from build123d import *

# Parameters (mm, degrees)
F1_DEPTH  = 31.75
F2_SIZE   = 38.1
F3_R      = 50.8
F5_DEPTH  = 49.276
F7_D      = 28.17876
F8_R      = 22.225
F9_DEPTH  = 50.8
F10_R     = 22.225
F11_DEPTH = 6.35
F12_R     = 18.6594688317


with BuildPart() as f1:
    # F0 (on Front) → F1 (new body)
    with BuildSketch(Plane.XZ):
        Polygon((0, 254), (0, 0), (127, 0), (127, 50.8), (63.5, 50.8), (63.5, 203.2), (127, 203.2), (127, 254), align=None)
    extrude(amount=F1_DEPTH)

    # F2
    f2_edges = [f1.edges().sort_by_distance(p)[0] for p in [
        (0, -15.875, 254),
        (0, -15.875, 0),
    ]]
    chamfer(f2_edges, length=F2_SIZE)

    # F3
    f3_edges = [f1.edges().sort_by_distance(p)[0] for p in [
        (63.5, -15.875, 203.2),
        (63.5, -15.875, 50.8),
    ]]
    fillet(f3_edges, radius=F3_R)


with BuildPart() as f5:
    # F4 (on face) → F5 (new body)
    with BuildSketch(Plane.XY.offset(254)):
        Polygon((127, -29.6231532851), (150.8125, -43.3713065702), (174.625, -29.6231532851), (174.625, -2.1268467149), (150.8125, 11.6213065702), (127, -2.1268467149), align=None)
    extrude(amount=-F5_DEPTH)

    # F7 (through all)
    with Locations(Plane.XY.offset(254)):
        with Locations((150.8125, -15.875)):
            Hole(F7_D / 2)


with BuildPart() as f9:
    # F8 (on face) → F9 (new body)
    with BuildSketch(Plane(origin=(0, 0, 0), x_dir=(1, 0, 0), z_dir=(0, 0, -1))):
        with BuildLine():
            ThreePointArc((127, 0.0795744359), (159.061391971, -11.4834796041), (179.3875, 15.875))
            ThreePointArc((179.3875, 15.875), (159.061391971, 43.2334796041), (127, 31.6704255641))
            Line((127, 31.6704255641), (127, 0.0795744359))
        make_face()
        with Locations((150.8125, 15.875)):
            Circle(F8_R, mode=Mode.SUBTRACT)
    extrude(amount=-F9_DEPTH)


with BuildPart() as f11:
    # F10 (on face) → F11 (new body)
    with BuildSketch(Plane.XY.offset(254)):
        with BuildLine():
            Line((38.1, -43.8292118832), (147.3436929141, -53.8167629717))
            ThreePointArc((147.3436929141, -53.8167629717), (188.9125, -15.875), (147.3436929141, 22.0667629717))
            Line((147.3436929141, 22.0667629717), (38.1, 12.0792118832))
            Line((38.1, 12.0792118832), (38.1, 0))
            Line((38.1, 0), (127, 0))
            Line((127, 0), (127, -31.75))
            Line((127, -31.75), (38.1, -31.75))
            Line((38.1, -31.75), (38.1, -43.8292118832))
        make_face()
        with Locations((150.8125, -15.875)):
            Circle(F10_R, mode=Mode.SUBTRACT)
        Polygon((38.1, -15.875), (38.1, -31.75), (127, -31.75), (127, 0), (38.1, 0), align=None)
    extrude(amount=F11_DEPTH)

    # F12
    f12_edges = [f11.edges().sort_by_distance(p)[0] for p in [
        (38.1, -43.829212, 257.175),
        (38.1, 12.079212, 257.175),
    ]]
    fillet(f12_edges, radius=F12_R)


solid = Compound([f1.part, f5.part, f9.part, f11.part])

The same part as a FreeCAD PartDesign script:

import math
import FreeCAD as App
import Part
import Sketcher
Q = App.Units.Quantity


def edges_at(feature, points):
    """Names of the edges that pass closest to the given points."""
    edges = feature.Shape.Edges
    near = lambda p: min(range(len(edges)), key=lambda i: edges[i].distToShape(Part.Vertex(*p))[0])
    return sorted({f"Edge{near(p) + 1}" for p in points})


def add_polygon(sketch, points):
    """Adds a closed chain of lines whose ends are joined by coincident constraints."""
    first, n = sketch.GeometryCount, len(points)
    for a, b in zip(points, points[1:] + points[:1]):
        sketch.addGeometry(Part.LineSegment(App.Vector(*a, 0), App.Vector(*b, 0)), False)
    for i in range(n):
        sketch.addConstraint(Sketcher.Constraint("Coincident", first + i, 2, first + (i + 1) % n, 1))

doc = App.newDocument("Part")
body = doc.addObject("PartDesign::Body", "Body")

sketch1 = body.newObject("Sketcher::SketchObject", "Sketch")
sketch1.AttachmentSupport = (doc.getObject("XZ_Plane"), [""])
sketch1.MapMode = "FlatFace"
add_polygon(sketch1, [(0, 254), (0, 0), (127, 0), (127, 51), (64, 51), (64, 203), (127, 203), (127, 254)])
sketch1.addConstraint([
    Sketcher.Constraint("Vertical", 0),
    Sketcher.Constraint("Horizontal", 1),
    Sketcher.Constraint("Vertical", 2),
    Sketcher.Constraint("Horizontal", 3),
    Sketcher.Constraint("Vertical", 4),
    Sketcher.Constraint("Horizontal", 5),
    Sketcher.Constraint("Vertical", 6),
    Sketcher.Constraint("Horizontal", 7),
    Sketcher.Constraint("Coincident", 0, 2, -1, 1),
    Sketcher.Constraint("Vertical", 2, 2, 5, 2),
    Sketcher.Constraint("Equal", 2, 6),
    Sketcher.Constraint("DistanceX", 1, 1, 1, 2, Q("5 in")),
    Sketcher.Constraint("DistanceY", 0, 2, 0, 1, Q("10 in")),
    Sketcher.Constraint("DistanceY", 2, 1, 2, 2, Q("2 in")),
    Sketcher.Constraint("DistanceX", 3, 2, 3, 1, Q("2.5 in")),
])
pad1 = body.newObject("PartDesign::Pad", "Pad")
pad1.Profile = sketch1
pad1.Length = Q("1.25 in")
doc.recompute()

chamfer = body.newObject("PartDesign::Chamfer", "Chamfer")
chamfer.Base = (pad1, edges_at(pad1, [(0, -15.875, 254), (0, -15.875, 0)]))
chamfer.Size = Q("1.5 in")
doc.recompute()

fillet = body.newObject("PartDesign::Fillet", "Fillet")
fillet.Base = (chamfer, edges_at(chamfer, [(63.5, -15.875, 203.2), (63.5, -15.875, 50.8)]))
fillet.Radius = Q("2 in")
body2 = doc.addObject("PartDesign::Body", "Body001")

sketch2 = body2.newObject("Sketcher::SketchObject", "Sketch001")
sketch2.AttachmentSupport = (doc.getObject("XY_Plane001"), [""])
sketch2.MapMode = "FlatFace"
sketch2.AttachmentOffset = App.Placement(App.Vector(0, 0, 10 * 25.4), App.Rotation())
add_polygon(sketch2, [(127, -30), (151, -43), (175, -30), (175, -2), (151, 12), (127, -2)])
sketch2.addConstraint([
    Sketcher.Constraint("Vertical", 2),
    Sketcher.Constraint("Vertical", 5),
    Sketcher.Constraint("Parallel", 0, 3),
    Sketcher.Constraint("Parallel", 1, 4),
    Sketcher.Constraint("Horizontal", 2, 2, 4, 2),
    Sketcher.Constraint("Horizontal", 1, 2, 5, 2),
    Sketcher.Constraint("Vertical", 0, 2, 3, 2),
    Sketcher.Constraint("DistanceX", -1, 1, 4, 2, Q("5 in")),
    Sketcher.Constraint("Angle", 0, Q("-30 deg")),
    Sketcher.Constraint("DistanceX", -1, 1, 0, 2, Q("5.9375 in")),
    Sketcher.Constraint("DistanceY", 2, 1, 2, 2, 27.496307),
    Sketcher.Constraint("DistanceY", 0, 2, -1, 1, 43.371307),
])
pad2 = body2.newObject("PartDesign::Pad", "Pad001")
pad2.Profile = sketch2
pad2.Length = Q("1.94 in")
pad2.Reversed = True

sketch3 = body2.newObject("Sketcher::SketchObject", "Sketch002")
sketch3.AttachmentSupport = (doc.getObject("XY_Plane001"), [""])
sketch3.MapMode = "FlatFace"
sketch3.AttachmentOffset = App.Placement(App.Vector(0, 0, 10 * 25.4), App.Rotation())
sketch3.addGeometry(Part.Circle(App.Vector(151, -16, 0), App.Vector(0, 0, 1), 14), False)
sketch3.addConstraint([
    Sketcher.Constraint("Diameter", 0, Q("1.1094 in")),
    Sketcher.Constraint("DistanceX", -1, 1, 0, 3, Q("5.9375 in")),
    Sketcher.Constraint("DistanceY", 0, 3, -1, 1, Q("0.625 in")),
])
doc.recompute()
hole = body2.newObject("PartDesign::Hole", "Hole")
hole.Profile = sketch3
hole.ThreadType = "None"
hole.Diameter = Q("1.1094 in")
hole.DepthType = "ThroughAll"
body3 = doc.addObject("PartDesign::Body", "Body002")

sketch4 = body3.newObject("Sketcher::SketchObject", "Sketch003")
sketch4.AttachmentSupport = (doc.getObject("XY_Plane002"), [""])
sketch4.MapMode = "FlatFace"
sketch4.addGeometry([
    Part.ArcOfCircle(Part.Circle(App.Vector(151, -16, 0), App.Vector(0, 0, 1), 29), math.radians(0), math.radians(146)),
    Part.ArcOfCircle(Part.Circle(App.Vector(151, -16, 0), App.Vector(0, 0, 1), 29), math.radians(-146), math.radians(0)),
    Part.LineSegment(App.Vector(127, -32, 0), App.Vector(127, 0, 0)),
    Part.Circle(App.Vector(151, -16, 0), App.Vector(0, 0, 1), 22),
], False)
sketch4.addConstraint([
    Sketcher.Constraint("Tangent", 0, 1, 1, 2),
    Sketcher.Constraint("Coincident", 1, 1, 2, 1),
    Sketcher.Constraint("Coincident", 2, 2, 0, 2),
    Sketcher.Constraint("Vertical", 2),
    Sketcher.Constraint("Coincident", 3, 3, 0, 3),
    Sketcher.Constraint("Equal", 0, 1),
    Sketcher.Constraint("Horizontal", 3, 3, 0, 1),
    Sketcher.Constraint("Diameter", 3, Q("1.75 in")),
    Sketcher.Constraint("DistanceX", -1, 1, 1, 1, Q("5 in")),
    Sketcher.Constraint("Radius", 0, Q("1.125 in")),
    Sketcher.Constraint("DistanceX", -1, 1, 0, 3, Q("5.9375 in")),
    Sketcher.Constraint("DistanceY", 0, 3, -1, 1, Q("0.625 in")),
])
pad3 = body3.newObject("PartDesign::Pad", "Pad002")
pad3.Profile = sketch4
pad3.Length = Q("2 in")
body4 = doc.addObject("PartDesign::Body", "Body003")

sketch5 = body4.newObject("Sketcher::SketchObject", "Sketch004")
sketch5.AttachmentSupport = (doc.getObject("XY_Plane003"), [""])
sketch5.MapMode = "FlatFace"
sketch5.AttachmentOffset = App.Placement(App.Vector(0, 0, 10 * 25.4), App.Rotation())
sketch5.addGeometry([
    Part.LineSegment(App.Vector(38, -44, 0), App.Vector(147, -54, 0)),
    Part.ArcOfCircle(Part.Circle(App.Vector(151, -16, 0), App.Vector(0, 0, 1), 38), math.radians(-95), math.radians(95)),
    Part.LineSegment(App.Vector(147, 22, 0), App.Vector(38, 12, 0)),
    Part.LineSegment(App.Vector(38, 12, 0), App.Vector(38, -44, 0)),
    Part.Circle(App.Vector(151, -16, 0), App.Vector(0, 0, 1), 22),
], False)
sketch5.addConstraint([
    Sketcher.Constraint("Tangent", 0, 2, 1, 1),
    Sketcher.Constraint("Tangent", 1, 2, 2, 1),
    Sketcher.Constraint("Coincident", 2, 2, 3, 1),
    Sketcher.Constraint("Coincident", 3, 2, 0, 1),
    Sketcher.Constraint("Vertical", 3),
    Sketcher.Constraint("Coincident", 4, 3, 1, 3),
    Sketcher.Constraint("Vertical", 0, 2, 1, 2),
    Sketcher.Constraint("Radius", 1, Q("1.5 in")),
    Sketcher.Constraint("Diameter", 4, Q("1.75 in")),
    Sketcher.Constraint("DistanceX", -1, 1, 2, 2, Q("1.5 in")),
    Sketcher.Constraint("DistanceX", -1, 1, 1, 3, Q("5.9375 in")),
    Sketcher.Constraint("DistanceY", 1, 3, -1, 1, Q("0.625 in")),
    Sketcher.Constraint("DistanceY", 3, 2, 3, 1, 55.908424),
])
pad4 = body4.newObject("PartDesign::Pad", "Pad003")
pad4.Profile = sketch5
pad4.Length = Q("0.25 in")
doc.recompute()

fillet2 = body4.newObject("PartDesign::Fillet", "Fillet001")
fillet2.Base = (pad4, edges_at(pad4, [(38.1, -43.829, 257.175), (38.1, 12.079, 257.175)]))
fillet2.Radius = 18.659469

doc.recompute()
